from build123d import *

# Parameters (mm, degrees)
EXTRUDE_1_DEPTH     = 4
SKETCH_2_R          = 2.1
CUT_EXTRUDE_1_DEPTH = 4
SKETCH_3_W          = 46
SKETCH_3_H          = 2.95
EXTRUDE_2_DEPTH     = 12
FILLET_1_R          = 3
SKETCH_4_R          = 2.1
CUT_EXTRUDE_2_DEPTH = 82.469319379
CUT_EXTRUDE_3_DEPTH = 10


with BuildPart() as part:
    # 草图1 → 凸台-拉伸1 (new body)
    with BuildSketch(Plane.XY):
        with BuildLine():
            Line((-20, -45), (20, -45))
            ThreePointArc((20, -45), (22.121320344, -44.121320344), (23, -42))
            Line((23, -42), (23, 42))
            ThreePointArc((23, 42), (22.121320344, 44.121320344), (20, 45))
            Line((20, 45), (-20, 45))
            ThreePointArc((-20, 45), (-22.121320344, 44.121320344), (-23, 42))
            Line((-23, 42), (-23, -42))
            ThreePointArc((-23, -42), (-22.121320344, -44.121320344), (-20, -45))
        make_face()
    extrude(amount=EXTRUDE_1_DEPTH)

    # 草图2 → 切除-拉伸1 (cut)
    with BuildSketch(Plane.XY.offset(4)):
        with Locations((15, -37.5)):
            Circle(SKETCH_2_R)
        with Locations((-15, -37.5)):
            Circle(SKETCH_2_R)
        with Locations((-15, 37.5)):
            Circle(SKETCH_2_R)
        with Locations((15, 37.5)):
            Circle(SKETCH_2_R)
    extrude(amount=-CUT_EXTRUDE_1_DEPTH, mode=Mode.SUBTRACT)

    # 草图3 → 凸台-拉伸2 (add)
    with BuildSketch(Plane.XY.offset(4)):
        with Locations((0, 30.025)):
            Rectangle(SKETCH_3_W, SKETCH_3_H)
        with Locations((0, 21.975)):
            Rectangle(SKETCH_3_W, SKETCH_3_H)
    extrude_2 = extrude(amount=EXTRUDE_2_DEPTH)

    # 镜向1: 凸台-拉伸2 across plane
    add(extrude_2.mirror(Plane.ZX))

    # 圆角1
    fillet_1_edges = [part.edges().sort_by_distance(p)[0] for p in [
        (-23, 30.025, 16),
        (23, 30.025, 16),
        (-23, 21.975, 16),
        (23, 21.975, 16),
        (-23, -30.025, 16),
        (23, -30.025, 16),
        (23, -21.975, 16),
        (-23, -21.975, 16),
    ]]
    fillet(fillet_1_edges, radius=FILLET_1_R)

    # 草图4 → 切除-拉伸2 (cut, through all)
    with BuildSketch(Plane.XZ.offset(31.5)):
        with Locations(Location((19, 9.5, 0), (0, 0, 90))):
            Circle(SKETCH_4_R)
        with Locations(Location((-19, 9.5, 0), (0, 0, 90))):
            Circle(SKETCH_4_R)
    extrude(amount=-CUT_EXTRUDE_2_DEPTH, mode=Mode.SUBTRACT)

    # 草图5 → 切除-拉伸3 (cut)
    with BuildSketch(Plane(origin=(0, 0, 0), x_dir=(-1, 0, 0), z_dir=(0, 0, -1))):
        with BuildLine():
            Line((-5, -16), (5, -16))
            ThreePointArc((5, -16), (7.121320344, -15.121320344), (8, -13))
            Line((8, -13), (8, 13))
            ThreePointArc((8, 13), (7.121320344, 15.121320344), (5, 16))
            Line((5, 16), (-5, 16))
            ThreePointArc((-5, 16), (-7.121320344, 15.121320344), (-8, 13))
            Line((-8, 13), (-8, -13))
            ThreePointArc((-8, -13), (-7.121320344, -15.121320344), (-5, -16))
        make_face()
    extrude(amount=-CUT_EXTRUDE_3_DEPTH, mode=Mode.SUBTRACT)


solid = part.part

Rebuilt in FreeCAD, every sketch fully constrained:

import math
import FreeCAD as App
import Part
import Sketcher
Q = App.Units.Quantity


def edges_at(feature, points):
    """Names of the edges that pass closest to the given points."""
    edges = feature.Shape.Edges
    near = lambda p: min(range(len(edges)), key=lambda i: edges[i].distToShape(Part.Vertex(*p))[0])
    return sorted({f"Edge{near(p) + 1}" for p in points})

doc = App.newDocument("Part")
body = doc.addObject("PartDesign::Body", "Body")

# Sketch on XY plane
sketch1 = body.newObject("Sketcher::SketchObject", "Sketch")
sketch1.AttachmentSupport = (doc.getObject("XY_Plane"), [""])
sketch1.MapMode = "FlatFace"
sketch1.addGeometry(Part.LineSegment(App.Vector(-20, -45, 0), App.Vector(20, -45, 0)), False)
sketch1.addGeometry(Part.ArcOfCircle(Part.Circle(App.Vector(20, -42, 0), App.Vector(0, 0, 1), 3), math.radians(-90), math.radians(0)), False)
sketch1.addGeometry(Part.LineSegment(App.Vector(23, -42, 0), App.Vector(23, 42, 0)), False)
sketch1.addGeometry(Part.ArcOfCircle(Part.Circle(App.Vector(20, 42, 0), App.Vector(0, 0, 1), 3), math.radians(0), math.radians(90)), False)
sketch1.addGeometry(Part.LineSegment(App.Vector(20, 45, 0), App.Vector(-20, 45, 0)), False)
sketch1.addGeometry(Part.ArcOfCircle(Part.Circle(App.Vector(-20, 42, 0), App.Vector(0, 0, 1), 3), math.radians(90), math.radians(180)), False)
sketch1.addGeometry(Part.LineSegment(App.Vector(-23, 42, 0), App.Vector(-23, -42, 0)), False)
sketch1.addGeometry(Part.ArcOfCircle(Part.Circle(App.Vector(-20, -42, 0), App.Vector(0, 0, 1), 3), math.radians(180), math.radians(270)), False)
sketch1.addConstraint(Sketcher.Constraint("Tangent", 0, 2, 1, 1))
sketch1.addConstraint(Sketcher.Constraint("Tangent", 1, 2, 2, 1))
sketch1.addConstraint(Sketcher.Constraint("Tangent", 2, 2, 3, 1))
sketch1.addConstraint(Sketcher.Constraint("Tangent", 3, 2, 4, 1))
sketch1.addConstraint(Sketcher.Constraint("Tangent", 4, 2, 5, 1))
sketch1.addConstraint(Sketcher.Constraint("Tangent", 5, 2, 6, 1))
sketch1.addConstraint(Sketcher.Constraint("Tangent", 6, 2, 7, 1))
sketch1.addConstraint(Sketcher.Constraint("Tangent", 7, 2, 0, 1))
sketch1.addConstraint(Sketcher.Constraint("Horizontal", 0))
sketch1.addConstraint(Sketcher.Constraint("Vertical", 2))
sketch1.addConstraint(Sketcher.Constraint("Horizontal", 4))
sketch1.addConstraint(Sketcher.Constraint("Vertical", 6))
sketch1.addConstraint(Sketcher.Constraint("Equal", 1, 3))
sketch1.addConstraint(Sketcher.Constraint("Equal", 3, 5))
sketch1.addConstraint(Sketcher.Constraint("Equal", 5, 7))
sketch1.addConstraint(Sketcher.Constraint("Symmetric", 1, 3, 5, 3, -1, 1))
sketch1.addConstraint(Sketcher.Constraint("Radius", 1, Q("3 mm")))
sketch1.addConstraint(Sketcher.Constraint("DistanceX", 0, 1, 0, 2, Q("40 mm")))
sketch1.addConstraint(Sketcher.Constraint("DistanceY", 2, 1, 2, 2, Q("84 mm")))
pad1 = body.newObject("PartDesign::Pad", "Pad")
pad1.Profile = sketch1
pad1.Length = 4

# Sketch on XY plane
sketch2 = body.newObject("Sketcher::SketchObject", "Sketch001")
sketch2.AttachmentSupport = (doc.getObject("XY_Plane"), [""])
sketch2.MapMode = "FlatFace"
sketch2.AttachmentOffset = App.Placement(App.Vector(0, 0, 4), App.Rotation())
sketch2.addGeometry(Part.Circle(App.Vector(15, -37.5, 0), App.Vector(0, 0, 1), 2.1), False)
sketch2.addGeometry(Part.Circle(App.Vector(-15, -37.5, 0), App.Vector(0, 0, 1), 2.1), False)
sketch2.addGeometry(Part.Circle(App.Vector(-15, 37.5, 0), App.Vector(0, 0, 1), 2.1), False)
sketch2.addGeometry(Part.Circle(App.Vector(15, 37.5, 0), App.Vector(0, 0, 1), 2.1), False)
sketch2.addConstraint(Sketcher.Constraint("Equal", 0, 1))
sketch2.addConstraint(Sketcher.Constraint("Equal", 1, 2))
sketch2.addConstraint(Sketcher.Constraint("Equal", 2, 3))
sketch2.addConstraint(Sketcher.Constraint("Symmetric", 0, 3, 2, 3, -1, 1))
sketch2.addConstraint(Sketcher.Constraint("Symmetric", 1, 3, 3, 3, -1, 1))
sketch2.addConstraint(Sketcher.Constraint("Symmetric", 0, 3, 1, 3, -2))
sketch2.addConstraint(Sketcher.Constraint("Diameter", 0, Q("4.2 mm")))
sketch2.addConstraint(Sketcher.Constraint("DistanceX", -1, 1, 0, 3, Q("15 mm")))
sketch2.addConstraint(Sketcher.Constraint("DistanceY", 1, 3, 2, 3, Q("75 mm")))
pocket1 = body.newObject("PartDesign::Pocket", "Pocket")
pocket1.Profile = sketch2
pocket1.Length = 4

# Sketch on XY plane
sketch3 = body.newObject("Sketcher::SketchObject", "Sketch002")
sketch3.AttachmentSupport = (doc.getObject("XY_Plane"), [""])
sketch3.MapMode = "FlatFace"
sketch3.AttachmentOffset = App.Placement(App.Vector(0, 0, 4), App.Rotation())
sketch3.addGeometry(Part.LineSegment(App.Vector(-23, 31.5, 0), App.Vector(-23, 28.6, 0)), False)
sketch3.addGeometry(Part.LineSegment(App.Vector(-23, 28.6, 0), App.Vector(23, 28.6, 0)), False)
sketch3.addGeometry(Part.LineSegment(App.Vector(23, 28.6, 0), App.Vector(23, 31.5, 0)), False)
sketch3.addGeometry(Part.LineSegment(App.Vector(23, 31.5, 0), App.Vector(-23, 31.5, 0)), False)
sketch3.addGeometry(Part.LineSegment(App.Vector(-23, 23.4, 0), App.Vector(-23, 20.5, 0)), False)
sketch3.addGeometry(Part.LineSegment(App.Vector(-23, 20.5, 0), App.Vector(23, 20.5, 0)), False)
sketch3.addGeometry(Part.LineSegment(App.Vector(23, 20.5, 0), App.Vector(23, 23.4, 0)), False)
sketch3.addGeometry(Part.LineSegment(App.Vector(23, 23.4, 0), App.Vector(-23, 23.4, 0)), False)
sketch3.addConstraint(Sketcher.Constraint("Coincident", 0, 2, 1, 1))
sketch3.addConstraint(Sketcher.Constraint("Coincident", 1, 2, 2, 1))
sketch3.addConstraint(Sketcher.Constraint("Coincident", 2, 2, 3, 1))
sketch3.addConstraint(Sketcher.Constraint("Coincident", 3, 2, 0, 1))
sketch3.addConstraint(Sketcher.Constraint("Coincident", 4, 2, 5, 1))
sketch3.addConstraint(Sketcher.Constraint("Coincident", 5, 2, 6, 1))
sketch3.addConstraint(Sketcher.Constraint("Coincident", 6, 2, 7, 1))
sketch3.addConstraint(Sketcher.Constraint("Coincident", 7, 2, 4, 1))
sketch3.addConstraint(Sketcher.Constraint("Vertical", 0))
sketch3.addConstraint(Sketcher.Constraint("Horizontal", 1))
sketch3.addConstraint(Sketcher.Constraint("Vertical", 2))
sketch3.addConstraint(Sketcher.Constraint("Horizontal", 3))
sketch3.addConstraint(Sketcher.Constraint("Vertical", 4))
sketch3.addConstraint(Sketcher.Constraint("Horizontal", 5))
sketch3.addConstraint(Sketcher.Constraint("Vertical", 6))
sketch3.addConstraint(Sketcher.Constraint("Horizontal", 7))
sketch3.addConstraint(Sketcher.Constraint("Vertical", 3, 2, 4, 2))
sketch3.addConstraint(Sketcher.Constraint("Vertical", 2, 2, 5, 2))
sketch3.addConstraint(Sketcher.Constraint("Equal", 2, 4))
sketch3.addConstraint(Sketcher.Constraint("DistanceX", 1, 1, 1, 2, Q("46 mm")))
sketch3.addConstraint(Sketcher.Constraint("DistanceX", 0, 2, -1, 1, Q("23 mm")))
sketch3.addConstraint(Sketcher.Constraint("DistanceY", 4, 2, 3, 2, Q("11 mm")))
sketch3.addConstraint(Sketcher.Constraint("DistanceY", 0, 2, 0, 1, Q("2.95 mm")))
sketch3.addConstraint(Sketcher.Constraint("DistanceY", -1, 1, 2, 2, Q("31.5 mm")))
pad2 = body.newObject("PartDesign::Pad", "Pad001")
pad2.Profile = sketch3
pad2.Length = 12
doc.recompute()

mirrored = body.newObject("PartDesign::Mirrored", "Mirrored")
mirrored.Originals = [pad2]
mirrored.MirrorPlane = (doc.getObject("XZ_Plane"), [""])
body.Tip = mirrored
doc.recompute()

fillet = body.newObject("PartDesign::Fillet", "Fillet")
fillet.Base = (mirrored, edges_at(mirrored, [
    (-23, 30.025, 16),
    (23, 30.025, 16),
    (-23, 21.975, 16),
    (23, 21.975, 16),
    (-23, -30.025, 16),
    (23, -30.025, 16),
    (23, -21.975, 16),
    (-23, -21.975, 16),
]))
fillet.Radius = 3

# Sketch on XZ plane
sketch4 = body.newObject("Sketcher::SketchObject", "Sketch003")
sketch4.AttachmentSupport = (doc.getObject("XZ_Plane"), [""])
sketch4.MapMode = "FlatFace"
sketch4.AttachmentOffset = App.Placement(App.Vector(0, 0, 31.5), App.Rotation())
sketch4.addGeometry(Part.Circle(App.Vector(19, 9.5, 0), App.Vector(0, 0, 1), 2.1), False)
sketch4.addGeometry(Part.Circle(App.Vector(-19, 9.5, 0), App.Vector(0, 0, 1), 2.1), False)
sketch4.addConstraint(Sketcher.Constraint("Equal", 0, 1))
sketch4.addConstraint(Sketcher.Constraint("Symmetric", 0, 3, 1, 3, -2))
sketch4.addConstraint(Sketcher.Constraint("Diameter", 0, Q("4.2 mm")))
sketch4.addConstraint(Sketcher.Constraint("DistanceX", -1, 1, 0, 3, Q("19 mm")))
sketch4.addConstraint(Sketcher.Constraint("DistanceY", -1, 1, 0, 3, Q("9.5 mm")))
pocket2 = body.newObject("PartDesign::Pocket", "Pocket001")
pocket2.Profile = sketch4
pocket2.Type = "ThroughAll"

# Sketch on XY plane
sketch5 = body.newObject("Sketcher::SketchObject", "Sketch004")
sketch5.AttachmentSupport = (doc.getObject("XY_Plane"), [""])
sketch5.MapMode = "FlatFace"
sketch5.addGeometry(Part.LineSegment(App.Vector(5, -16, 0), App.Vector(-5, -16, 0)), False)
sketch5.addGeometry(Part.ArcOfCircle(Part.Circle(App.Vector(-5, -13, 0), App.Vector(0, 0, 1), 3), math.radians(180), math.radians(270)), False)
sketch5.addGeometry(Part.LineSegment(App.Vector(-8, -13, 0), App.Vector(-8, 13, 0)), False)
sketch5.addGeometry(Part.ArcOfCircle(Part.Circle(App.Vector(-5, 13, 0), App.Vector(0, 0, 1), 3), math.radians(90), math.radians(180)), False)
sketch5.addGeometry(Part.LineSegment(App.Vector(-5, 16, 0), App.Vector(5, 16, 0)), False)
sketch5.addGeometry(Part.ArcOfCircle(Part.Circle(App.Vector(5, 13, 0), App.Vector(0, 0, 1), 3), math.radians(0), math.radians(90)), False)
sketch5.addGeometry(Part.LineSegment(App.Vector(8, 13, 0), App.Vector(8, -13, 0)), False)
sketch5.addGeometry(Part.ArcOfCircle(Part.Circle(App.Vector(5, -13, 0), App.Vector(0, 0, 1), 3), math.radians(-90), math.radians(0)), False)
sketch5.addConstraint(Sketcher.Constraint("Tangent", 0, 2, 1, 2))
sketch5.addConstraint(Sketcher.Constraint("Tangent", 1, 1, 2, 1))
sketch5.addConstraint(Sketcher.Constraint("Tangent", 2, 2, 3, 2))
sketch5.addConstraint(Sketcher.Constraint("Tangent", 3, 1, 4, 1))
sketch5.addConstraint(Sketcher.Constraint("Tangent", 4, 2, 5, 2))
sketch5.addConstraint(Sketcher.Constraint("Tangent", 5, 1, 6, 1))
sketch5.addConstraint(Sketcher.Constraint("Tangent", 6, 2, 7, 2))
sketch5.addConstraint(Sketcher.Constraint("Tangent", 7, 1, 0, 1))
sketch5.addConstraint(Sketcher.Constraint("Horizontal", 0))
sketch5.addConstraint(Sketcher.Constraint("Vertical", 2))
sketch5.addConstraint(Sketcher.Constraint("Horizontal", 4))
sketch5.addConstraint(Sketcher.Constraint("Vertical", 6))
sketch5.addConstraint(Sketcher.Constraint("Equal", 1, 3))
sketch5.addConstraint(Sketcher.Constraint("Equal", 3, 5))
sketch5.addConstraint(Sketcher.Constraint("Equal", 5, 7))
sketch5.addConstraint(Sketcher.Constraint("Symmetric", 1, 3, 5, 3, -1, 1))
sketch5.addConstraint(Sketcher.Constraint("Radius", 1, Q("3 mm")))
sketch5.addConstraint(Sketcher.Constraint("DistanceX", 0, 2, 0, 1, Q("10 mm")))
sketch5.addConstraint(Sketcher.Constraint("DistanceY", 2, 1, 2, 2, Q("26 mm")))
pocket3 = body.newObject("PartDesign::Pocket", "Pocket002")
pocket3.Profile = sketch5
pocket3.Length = 10
pocket3.Reversed = True

doc.recompute()
